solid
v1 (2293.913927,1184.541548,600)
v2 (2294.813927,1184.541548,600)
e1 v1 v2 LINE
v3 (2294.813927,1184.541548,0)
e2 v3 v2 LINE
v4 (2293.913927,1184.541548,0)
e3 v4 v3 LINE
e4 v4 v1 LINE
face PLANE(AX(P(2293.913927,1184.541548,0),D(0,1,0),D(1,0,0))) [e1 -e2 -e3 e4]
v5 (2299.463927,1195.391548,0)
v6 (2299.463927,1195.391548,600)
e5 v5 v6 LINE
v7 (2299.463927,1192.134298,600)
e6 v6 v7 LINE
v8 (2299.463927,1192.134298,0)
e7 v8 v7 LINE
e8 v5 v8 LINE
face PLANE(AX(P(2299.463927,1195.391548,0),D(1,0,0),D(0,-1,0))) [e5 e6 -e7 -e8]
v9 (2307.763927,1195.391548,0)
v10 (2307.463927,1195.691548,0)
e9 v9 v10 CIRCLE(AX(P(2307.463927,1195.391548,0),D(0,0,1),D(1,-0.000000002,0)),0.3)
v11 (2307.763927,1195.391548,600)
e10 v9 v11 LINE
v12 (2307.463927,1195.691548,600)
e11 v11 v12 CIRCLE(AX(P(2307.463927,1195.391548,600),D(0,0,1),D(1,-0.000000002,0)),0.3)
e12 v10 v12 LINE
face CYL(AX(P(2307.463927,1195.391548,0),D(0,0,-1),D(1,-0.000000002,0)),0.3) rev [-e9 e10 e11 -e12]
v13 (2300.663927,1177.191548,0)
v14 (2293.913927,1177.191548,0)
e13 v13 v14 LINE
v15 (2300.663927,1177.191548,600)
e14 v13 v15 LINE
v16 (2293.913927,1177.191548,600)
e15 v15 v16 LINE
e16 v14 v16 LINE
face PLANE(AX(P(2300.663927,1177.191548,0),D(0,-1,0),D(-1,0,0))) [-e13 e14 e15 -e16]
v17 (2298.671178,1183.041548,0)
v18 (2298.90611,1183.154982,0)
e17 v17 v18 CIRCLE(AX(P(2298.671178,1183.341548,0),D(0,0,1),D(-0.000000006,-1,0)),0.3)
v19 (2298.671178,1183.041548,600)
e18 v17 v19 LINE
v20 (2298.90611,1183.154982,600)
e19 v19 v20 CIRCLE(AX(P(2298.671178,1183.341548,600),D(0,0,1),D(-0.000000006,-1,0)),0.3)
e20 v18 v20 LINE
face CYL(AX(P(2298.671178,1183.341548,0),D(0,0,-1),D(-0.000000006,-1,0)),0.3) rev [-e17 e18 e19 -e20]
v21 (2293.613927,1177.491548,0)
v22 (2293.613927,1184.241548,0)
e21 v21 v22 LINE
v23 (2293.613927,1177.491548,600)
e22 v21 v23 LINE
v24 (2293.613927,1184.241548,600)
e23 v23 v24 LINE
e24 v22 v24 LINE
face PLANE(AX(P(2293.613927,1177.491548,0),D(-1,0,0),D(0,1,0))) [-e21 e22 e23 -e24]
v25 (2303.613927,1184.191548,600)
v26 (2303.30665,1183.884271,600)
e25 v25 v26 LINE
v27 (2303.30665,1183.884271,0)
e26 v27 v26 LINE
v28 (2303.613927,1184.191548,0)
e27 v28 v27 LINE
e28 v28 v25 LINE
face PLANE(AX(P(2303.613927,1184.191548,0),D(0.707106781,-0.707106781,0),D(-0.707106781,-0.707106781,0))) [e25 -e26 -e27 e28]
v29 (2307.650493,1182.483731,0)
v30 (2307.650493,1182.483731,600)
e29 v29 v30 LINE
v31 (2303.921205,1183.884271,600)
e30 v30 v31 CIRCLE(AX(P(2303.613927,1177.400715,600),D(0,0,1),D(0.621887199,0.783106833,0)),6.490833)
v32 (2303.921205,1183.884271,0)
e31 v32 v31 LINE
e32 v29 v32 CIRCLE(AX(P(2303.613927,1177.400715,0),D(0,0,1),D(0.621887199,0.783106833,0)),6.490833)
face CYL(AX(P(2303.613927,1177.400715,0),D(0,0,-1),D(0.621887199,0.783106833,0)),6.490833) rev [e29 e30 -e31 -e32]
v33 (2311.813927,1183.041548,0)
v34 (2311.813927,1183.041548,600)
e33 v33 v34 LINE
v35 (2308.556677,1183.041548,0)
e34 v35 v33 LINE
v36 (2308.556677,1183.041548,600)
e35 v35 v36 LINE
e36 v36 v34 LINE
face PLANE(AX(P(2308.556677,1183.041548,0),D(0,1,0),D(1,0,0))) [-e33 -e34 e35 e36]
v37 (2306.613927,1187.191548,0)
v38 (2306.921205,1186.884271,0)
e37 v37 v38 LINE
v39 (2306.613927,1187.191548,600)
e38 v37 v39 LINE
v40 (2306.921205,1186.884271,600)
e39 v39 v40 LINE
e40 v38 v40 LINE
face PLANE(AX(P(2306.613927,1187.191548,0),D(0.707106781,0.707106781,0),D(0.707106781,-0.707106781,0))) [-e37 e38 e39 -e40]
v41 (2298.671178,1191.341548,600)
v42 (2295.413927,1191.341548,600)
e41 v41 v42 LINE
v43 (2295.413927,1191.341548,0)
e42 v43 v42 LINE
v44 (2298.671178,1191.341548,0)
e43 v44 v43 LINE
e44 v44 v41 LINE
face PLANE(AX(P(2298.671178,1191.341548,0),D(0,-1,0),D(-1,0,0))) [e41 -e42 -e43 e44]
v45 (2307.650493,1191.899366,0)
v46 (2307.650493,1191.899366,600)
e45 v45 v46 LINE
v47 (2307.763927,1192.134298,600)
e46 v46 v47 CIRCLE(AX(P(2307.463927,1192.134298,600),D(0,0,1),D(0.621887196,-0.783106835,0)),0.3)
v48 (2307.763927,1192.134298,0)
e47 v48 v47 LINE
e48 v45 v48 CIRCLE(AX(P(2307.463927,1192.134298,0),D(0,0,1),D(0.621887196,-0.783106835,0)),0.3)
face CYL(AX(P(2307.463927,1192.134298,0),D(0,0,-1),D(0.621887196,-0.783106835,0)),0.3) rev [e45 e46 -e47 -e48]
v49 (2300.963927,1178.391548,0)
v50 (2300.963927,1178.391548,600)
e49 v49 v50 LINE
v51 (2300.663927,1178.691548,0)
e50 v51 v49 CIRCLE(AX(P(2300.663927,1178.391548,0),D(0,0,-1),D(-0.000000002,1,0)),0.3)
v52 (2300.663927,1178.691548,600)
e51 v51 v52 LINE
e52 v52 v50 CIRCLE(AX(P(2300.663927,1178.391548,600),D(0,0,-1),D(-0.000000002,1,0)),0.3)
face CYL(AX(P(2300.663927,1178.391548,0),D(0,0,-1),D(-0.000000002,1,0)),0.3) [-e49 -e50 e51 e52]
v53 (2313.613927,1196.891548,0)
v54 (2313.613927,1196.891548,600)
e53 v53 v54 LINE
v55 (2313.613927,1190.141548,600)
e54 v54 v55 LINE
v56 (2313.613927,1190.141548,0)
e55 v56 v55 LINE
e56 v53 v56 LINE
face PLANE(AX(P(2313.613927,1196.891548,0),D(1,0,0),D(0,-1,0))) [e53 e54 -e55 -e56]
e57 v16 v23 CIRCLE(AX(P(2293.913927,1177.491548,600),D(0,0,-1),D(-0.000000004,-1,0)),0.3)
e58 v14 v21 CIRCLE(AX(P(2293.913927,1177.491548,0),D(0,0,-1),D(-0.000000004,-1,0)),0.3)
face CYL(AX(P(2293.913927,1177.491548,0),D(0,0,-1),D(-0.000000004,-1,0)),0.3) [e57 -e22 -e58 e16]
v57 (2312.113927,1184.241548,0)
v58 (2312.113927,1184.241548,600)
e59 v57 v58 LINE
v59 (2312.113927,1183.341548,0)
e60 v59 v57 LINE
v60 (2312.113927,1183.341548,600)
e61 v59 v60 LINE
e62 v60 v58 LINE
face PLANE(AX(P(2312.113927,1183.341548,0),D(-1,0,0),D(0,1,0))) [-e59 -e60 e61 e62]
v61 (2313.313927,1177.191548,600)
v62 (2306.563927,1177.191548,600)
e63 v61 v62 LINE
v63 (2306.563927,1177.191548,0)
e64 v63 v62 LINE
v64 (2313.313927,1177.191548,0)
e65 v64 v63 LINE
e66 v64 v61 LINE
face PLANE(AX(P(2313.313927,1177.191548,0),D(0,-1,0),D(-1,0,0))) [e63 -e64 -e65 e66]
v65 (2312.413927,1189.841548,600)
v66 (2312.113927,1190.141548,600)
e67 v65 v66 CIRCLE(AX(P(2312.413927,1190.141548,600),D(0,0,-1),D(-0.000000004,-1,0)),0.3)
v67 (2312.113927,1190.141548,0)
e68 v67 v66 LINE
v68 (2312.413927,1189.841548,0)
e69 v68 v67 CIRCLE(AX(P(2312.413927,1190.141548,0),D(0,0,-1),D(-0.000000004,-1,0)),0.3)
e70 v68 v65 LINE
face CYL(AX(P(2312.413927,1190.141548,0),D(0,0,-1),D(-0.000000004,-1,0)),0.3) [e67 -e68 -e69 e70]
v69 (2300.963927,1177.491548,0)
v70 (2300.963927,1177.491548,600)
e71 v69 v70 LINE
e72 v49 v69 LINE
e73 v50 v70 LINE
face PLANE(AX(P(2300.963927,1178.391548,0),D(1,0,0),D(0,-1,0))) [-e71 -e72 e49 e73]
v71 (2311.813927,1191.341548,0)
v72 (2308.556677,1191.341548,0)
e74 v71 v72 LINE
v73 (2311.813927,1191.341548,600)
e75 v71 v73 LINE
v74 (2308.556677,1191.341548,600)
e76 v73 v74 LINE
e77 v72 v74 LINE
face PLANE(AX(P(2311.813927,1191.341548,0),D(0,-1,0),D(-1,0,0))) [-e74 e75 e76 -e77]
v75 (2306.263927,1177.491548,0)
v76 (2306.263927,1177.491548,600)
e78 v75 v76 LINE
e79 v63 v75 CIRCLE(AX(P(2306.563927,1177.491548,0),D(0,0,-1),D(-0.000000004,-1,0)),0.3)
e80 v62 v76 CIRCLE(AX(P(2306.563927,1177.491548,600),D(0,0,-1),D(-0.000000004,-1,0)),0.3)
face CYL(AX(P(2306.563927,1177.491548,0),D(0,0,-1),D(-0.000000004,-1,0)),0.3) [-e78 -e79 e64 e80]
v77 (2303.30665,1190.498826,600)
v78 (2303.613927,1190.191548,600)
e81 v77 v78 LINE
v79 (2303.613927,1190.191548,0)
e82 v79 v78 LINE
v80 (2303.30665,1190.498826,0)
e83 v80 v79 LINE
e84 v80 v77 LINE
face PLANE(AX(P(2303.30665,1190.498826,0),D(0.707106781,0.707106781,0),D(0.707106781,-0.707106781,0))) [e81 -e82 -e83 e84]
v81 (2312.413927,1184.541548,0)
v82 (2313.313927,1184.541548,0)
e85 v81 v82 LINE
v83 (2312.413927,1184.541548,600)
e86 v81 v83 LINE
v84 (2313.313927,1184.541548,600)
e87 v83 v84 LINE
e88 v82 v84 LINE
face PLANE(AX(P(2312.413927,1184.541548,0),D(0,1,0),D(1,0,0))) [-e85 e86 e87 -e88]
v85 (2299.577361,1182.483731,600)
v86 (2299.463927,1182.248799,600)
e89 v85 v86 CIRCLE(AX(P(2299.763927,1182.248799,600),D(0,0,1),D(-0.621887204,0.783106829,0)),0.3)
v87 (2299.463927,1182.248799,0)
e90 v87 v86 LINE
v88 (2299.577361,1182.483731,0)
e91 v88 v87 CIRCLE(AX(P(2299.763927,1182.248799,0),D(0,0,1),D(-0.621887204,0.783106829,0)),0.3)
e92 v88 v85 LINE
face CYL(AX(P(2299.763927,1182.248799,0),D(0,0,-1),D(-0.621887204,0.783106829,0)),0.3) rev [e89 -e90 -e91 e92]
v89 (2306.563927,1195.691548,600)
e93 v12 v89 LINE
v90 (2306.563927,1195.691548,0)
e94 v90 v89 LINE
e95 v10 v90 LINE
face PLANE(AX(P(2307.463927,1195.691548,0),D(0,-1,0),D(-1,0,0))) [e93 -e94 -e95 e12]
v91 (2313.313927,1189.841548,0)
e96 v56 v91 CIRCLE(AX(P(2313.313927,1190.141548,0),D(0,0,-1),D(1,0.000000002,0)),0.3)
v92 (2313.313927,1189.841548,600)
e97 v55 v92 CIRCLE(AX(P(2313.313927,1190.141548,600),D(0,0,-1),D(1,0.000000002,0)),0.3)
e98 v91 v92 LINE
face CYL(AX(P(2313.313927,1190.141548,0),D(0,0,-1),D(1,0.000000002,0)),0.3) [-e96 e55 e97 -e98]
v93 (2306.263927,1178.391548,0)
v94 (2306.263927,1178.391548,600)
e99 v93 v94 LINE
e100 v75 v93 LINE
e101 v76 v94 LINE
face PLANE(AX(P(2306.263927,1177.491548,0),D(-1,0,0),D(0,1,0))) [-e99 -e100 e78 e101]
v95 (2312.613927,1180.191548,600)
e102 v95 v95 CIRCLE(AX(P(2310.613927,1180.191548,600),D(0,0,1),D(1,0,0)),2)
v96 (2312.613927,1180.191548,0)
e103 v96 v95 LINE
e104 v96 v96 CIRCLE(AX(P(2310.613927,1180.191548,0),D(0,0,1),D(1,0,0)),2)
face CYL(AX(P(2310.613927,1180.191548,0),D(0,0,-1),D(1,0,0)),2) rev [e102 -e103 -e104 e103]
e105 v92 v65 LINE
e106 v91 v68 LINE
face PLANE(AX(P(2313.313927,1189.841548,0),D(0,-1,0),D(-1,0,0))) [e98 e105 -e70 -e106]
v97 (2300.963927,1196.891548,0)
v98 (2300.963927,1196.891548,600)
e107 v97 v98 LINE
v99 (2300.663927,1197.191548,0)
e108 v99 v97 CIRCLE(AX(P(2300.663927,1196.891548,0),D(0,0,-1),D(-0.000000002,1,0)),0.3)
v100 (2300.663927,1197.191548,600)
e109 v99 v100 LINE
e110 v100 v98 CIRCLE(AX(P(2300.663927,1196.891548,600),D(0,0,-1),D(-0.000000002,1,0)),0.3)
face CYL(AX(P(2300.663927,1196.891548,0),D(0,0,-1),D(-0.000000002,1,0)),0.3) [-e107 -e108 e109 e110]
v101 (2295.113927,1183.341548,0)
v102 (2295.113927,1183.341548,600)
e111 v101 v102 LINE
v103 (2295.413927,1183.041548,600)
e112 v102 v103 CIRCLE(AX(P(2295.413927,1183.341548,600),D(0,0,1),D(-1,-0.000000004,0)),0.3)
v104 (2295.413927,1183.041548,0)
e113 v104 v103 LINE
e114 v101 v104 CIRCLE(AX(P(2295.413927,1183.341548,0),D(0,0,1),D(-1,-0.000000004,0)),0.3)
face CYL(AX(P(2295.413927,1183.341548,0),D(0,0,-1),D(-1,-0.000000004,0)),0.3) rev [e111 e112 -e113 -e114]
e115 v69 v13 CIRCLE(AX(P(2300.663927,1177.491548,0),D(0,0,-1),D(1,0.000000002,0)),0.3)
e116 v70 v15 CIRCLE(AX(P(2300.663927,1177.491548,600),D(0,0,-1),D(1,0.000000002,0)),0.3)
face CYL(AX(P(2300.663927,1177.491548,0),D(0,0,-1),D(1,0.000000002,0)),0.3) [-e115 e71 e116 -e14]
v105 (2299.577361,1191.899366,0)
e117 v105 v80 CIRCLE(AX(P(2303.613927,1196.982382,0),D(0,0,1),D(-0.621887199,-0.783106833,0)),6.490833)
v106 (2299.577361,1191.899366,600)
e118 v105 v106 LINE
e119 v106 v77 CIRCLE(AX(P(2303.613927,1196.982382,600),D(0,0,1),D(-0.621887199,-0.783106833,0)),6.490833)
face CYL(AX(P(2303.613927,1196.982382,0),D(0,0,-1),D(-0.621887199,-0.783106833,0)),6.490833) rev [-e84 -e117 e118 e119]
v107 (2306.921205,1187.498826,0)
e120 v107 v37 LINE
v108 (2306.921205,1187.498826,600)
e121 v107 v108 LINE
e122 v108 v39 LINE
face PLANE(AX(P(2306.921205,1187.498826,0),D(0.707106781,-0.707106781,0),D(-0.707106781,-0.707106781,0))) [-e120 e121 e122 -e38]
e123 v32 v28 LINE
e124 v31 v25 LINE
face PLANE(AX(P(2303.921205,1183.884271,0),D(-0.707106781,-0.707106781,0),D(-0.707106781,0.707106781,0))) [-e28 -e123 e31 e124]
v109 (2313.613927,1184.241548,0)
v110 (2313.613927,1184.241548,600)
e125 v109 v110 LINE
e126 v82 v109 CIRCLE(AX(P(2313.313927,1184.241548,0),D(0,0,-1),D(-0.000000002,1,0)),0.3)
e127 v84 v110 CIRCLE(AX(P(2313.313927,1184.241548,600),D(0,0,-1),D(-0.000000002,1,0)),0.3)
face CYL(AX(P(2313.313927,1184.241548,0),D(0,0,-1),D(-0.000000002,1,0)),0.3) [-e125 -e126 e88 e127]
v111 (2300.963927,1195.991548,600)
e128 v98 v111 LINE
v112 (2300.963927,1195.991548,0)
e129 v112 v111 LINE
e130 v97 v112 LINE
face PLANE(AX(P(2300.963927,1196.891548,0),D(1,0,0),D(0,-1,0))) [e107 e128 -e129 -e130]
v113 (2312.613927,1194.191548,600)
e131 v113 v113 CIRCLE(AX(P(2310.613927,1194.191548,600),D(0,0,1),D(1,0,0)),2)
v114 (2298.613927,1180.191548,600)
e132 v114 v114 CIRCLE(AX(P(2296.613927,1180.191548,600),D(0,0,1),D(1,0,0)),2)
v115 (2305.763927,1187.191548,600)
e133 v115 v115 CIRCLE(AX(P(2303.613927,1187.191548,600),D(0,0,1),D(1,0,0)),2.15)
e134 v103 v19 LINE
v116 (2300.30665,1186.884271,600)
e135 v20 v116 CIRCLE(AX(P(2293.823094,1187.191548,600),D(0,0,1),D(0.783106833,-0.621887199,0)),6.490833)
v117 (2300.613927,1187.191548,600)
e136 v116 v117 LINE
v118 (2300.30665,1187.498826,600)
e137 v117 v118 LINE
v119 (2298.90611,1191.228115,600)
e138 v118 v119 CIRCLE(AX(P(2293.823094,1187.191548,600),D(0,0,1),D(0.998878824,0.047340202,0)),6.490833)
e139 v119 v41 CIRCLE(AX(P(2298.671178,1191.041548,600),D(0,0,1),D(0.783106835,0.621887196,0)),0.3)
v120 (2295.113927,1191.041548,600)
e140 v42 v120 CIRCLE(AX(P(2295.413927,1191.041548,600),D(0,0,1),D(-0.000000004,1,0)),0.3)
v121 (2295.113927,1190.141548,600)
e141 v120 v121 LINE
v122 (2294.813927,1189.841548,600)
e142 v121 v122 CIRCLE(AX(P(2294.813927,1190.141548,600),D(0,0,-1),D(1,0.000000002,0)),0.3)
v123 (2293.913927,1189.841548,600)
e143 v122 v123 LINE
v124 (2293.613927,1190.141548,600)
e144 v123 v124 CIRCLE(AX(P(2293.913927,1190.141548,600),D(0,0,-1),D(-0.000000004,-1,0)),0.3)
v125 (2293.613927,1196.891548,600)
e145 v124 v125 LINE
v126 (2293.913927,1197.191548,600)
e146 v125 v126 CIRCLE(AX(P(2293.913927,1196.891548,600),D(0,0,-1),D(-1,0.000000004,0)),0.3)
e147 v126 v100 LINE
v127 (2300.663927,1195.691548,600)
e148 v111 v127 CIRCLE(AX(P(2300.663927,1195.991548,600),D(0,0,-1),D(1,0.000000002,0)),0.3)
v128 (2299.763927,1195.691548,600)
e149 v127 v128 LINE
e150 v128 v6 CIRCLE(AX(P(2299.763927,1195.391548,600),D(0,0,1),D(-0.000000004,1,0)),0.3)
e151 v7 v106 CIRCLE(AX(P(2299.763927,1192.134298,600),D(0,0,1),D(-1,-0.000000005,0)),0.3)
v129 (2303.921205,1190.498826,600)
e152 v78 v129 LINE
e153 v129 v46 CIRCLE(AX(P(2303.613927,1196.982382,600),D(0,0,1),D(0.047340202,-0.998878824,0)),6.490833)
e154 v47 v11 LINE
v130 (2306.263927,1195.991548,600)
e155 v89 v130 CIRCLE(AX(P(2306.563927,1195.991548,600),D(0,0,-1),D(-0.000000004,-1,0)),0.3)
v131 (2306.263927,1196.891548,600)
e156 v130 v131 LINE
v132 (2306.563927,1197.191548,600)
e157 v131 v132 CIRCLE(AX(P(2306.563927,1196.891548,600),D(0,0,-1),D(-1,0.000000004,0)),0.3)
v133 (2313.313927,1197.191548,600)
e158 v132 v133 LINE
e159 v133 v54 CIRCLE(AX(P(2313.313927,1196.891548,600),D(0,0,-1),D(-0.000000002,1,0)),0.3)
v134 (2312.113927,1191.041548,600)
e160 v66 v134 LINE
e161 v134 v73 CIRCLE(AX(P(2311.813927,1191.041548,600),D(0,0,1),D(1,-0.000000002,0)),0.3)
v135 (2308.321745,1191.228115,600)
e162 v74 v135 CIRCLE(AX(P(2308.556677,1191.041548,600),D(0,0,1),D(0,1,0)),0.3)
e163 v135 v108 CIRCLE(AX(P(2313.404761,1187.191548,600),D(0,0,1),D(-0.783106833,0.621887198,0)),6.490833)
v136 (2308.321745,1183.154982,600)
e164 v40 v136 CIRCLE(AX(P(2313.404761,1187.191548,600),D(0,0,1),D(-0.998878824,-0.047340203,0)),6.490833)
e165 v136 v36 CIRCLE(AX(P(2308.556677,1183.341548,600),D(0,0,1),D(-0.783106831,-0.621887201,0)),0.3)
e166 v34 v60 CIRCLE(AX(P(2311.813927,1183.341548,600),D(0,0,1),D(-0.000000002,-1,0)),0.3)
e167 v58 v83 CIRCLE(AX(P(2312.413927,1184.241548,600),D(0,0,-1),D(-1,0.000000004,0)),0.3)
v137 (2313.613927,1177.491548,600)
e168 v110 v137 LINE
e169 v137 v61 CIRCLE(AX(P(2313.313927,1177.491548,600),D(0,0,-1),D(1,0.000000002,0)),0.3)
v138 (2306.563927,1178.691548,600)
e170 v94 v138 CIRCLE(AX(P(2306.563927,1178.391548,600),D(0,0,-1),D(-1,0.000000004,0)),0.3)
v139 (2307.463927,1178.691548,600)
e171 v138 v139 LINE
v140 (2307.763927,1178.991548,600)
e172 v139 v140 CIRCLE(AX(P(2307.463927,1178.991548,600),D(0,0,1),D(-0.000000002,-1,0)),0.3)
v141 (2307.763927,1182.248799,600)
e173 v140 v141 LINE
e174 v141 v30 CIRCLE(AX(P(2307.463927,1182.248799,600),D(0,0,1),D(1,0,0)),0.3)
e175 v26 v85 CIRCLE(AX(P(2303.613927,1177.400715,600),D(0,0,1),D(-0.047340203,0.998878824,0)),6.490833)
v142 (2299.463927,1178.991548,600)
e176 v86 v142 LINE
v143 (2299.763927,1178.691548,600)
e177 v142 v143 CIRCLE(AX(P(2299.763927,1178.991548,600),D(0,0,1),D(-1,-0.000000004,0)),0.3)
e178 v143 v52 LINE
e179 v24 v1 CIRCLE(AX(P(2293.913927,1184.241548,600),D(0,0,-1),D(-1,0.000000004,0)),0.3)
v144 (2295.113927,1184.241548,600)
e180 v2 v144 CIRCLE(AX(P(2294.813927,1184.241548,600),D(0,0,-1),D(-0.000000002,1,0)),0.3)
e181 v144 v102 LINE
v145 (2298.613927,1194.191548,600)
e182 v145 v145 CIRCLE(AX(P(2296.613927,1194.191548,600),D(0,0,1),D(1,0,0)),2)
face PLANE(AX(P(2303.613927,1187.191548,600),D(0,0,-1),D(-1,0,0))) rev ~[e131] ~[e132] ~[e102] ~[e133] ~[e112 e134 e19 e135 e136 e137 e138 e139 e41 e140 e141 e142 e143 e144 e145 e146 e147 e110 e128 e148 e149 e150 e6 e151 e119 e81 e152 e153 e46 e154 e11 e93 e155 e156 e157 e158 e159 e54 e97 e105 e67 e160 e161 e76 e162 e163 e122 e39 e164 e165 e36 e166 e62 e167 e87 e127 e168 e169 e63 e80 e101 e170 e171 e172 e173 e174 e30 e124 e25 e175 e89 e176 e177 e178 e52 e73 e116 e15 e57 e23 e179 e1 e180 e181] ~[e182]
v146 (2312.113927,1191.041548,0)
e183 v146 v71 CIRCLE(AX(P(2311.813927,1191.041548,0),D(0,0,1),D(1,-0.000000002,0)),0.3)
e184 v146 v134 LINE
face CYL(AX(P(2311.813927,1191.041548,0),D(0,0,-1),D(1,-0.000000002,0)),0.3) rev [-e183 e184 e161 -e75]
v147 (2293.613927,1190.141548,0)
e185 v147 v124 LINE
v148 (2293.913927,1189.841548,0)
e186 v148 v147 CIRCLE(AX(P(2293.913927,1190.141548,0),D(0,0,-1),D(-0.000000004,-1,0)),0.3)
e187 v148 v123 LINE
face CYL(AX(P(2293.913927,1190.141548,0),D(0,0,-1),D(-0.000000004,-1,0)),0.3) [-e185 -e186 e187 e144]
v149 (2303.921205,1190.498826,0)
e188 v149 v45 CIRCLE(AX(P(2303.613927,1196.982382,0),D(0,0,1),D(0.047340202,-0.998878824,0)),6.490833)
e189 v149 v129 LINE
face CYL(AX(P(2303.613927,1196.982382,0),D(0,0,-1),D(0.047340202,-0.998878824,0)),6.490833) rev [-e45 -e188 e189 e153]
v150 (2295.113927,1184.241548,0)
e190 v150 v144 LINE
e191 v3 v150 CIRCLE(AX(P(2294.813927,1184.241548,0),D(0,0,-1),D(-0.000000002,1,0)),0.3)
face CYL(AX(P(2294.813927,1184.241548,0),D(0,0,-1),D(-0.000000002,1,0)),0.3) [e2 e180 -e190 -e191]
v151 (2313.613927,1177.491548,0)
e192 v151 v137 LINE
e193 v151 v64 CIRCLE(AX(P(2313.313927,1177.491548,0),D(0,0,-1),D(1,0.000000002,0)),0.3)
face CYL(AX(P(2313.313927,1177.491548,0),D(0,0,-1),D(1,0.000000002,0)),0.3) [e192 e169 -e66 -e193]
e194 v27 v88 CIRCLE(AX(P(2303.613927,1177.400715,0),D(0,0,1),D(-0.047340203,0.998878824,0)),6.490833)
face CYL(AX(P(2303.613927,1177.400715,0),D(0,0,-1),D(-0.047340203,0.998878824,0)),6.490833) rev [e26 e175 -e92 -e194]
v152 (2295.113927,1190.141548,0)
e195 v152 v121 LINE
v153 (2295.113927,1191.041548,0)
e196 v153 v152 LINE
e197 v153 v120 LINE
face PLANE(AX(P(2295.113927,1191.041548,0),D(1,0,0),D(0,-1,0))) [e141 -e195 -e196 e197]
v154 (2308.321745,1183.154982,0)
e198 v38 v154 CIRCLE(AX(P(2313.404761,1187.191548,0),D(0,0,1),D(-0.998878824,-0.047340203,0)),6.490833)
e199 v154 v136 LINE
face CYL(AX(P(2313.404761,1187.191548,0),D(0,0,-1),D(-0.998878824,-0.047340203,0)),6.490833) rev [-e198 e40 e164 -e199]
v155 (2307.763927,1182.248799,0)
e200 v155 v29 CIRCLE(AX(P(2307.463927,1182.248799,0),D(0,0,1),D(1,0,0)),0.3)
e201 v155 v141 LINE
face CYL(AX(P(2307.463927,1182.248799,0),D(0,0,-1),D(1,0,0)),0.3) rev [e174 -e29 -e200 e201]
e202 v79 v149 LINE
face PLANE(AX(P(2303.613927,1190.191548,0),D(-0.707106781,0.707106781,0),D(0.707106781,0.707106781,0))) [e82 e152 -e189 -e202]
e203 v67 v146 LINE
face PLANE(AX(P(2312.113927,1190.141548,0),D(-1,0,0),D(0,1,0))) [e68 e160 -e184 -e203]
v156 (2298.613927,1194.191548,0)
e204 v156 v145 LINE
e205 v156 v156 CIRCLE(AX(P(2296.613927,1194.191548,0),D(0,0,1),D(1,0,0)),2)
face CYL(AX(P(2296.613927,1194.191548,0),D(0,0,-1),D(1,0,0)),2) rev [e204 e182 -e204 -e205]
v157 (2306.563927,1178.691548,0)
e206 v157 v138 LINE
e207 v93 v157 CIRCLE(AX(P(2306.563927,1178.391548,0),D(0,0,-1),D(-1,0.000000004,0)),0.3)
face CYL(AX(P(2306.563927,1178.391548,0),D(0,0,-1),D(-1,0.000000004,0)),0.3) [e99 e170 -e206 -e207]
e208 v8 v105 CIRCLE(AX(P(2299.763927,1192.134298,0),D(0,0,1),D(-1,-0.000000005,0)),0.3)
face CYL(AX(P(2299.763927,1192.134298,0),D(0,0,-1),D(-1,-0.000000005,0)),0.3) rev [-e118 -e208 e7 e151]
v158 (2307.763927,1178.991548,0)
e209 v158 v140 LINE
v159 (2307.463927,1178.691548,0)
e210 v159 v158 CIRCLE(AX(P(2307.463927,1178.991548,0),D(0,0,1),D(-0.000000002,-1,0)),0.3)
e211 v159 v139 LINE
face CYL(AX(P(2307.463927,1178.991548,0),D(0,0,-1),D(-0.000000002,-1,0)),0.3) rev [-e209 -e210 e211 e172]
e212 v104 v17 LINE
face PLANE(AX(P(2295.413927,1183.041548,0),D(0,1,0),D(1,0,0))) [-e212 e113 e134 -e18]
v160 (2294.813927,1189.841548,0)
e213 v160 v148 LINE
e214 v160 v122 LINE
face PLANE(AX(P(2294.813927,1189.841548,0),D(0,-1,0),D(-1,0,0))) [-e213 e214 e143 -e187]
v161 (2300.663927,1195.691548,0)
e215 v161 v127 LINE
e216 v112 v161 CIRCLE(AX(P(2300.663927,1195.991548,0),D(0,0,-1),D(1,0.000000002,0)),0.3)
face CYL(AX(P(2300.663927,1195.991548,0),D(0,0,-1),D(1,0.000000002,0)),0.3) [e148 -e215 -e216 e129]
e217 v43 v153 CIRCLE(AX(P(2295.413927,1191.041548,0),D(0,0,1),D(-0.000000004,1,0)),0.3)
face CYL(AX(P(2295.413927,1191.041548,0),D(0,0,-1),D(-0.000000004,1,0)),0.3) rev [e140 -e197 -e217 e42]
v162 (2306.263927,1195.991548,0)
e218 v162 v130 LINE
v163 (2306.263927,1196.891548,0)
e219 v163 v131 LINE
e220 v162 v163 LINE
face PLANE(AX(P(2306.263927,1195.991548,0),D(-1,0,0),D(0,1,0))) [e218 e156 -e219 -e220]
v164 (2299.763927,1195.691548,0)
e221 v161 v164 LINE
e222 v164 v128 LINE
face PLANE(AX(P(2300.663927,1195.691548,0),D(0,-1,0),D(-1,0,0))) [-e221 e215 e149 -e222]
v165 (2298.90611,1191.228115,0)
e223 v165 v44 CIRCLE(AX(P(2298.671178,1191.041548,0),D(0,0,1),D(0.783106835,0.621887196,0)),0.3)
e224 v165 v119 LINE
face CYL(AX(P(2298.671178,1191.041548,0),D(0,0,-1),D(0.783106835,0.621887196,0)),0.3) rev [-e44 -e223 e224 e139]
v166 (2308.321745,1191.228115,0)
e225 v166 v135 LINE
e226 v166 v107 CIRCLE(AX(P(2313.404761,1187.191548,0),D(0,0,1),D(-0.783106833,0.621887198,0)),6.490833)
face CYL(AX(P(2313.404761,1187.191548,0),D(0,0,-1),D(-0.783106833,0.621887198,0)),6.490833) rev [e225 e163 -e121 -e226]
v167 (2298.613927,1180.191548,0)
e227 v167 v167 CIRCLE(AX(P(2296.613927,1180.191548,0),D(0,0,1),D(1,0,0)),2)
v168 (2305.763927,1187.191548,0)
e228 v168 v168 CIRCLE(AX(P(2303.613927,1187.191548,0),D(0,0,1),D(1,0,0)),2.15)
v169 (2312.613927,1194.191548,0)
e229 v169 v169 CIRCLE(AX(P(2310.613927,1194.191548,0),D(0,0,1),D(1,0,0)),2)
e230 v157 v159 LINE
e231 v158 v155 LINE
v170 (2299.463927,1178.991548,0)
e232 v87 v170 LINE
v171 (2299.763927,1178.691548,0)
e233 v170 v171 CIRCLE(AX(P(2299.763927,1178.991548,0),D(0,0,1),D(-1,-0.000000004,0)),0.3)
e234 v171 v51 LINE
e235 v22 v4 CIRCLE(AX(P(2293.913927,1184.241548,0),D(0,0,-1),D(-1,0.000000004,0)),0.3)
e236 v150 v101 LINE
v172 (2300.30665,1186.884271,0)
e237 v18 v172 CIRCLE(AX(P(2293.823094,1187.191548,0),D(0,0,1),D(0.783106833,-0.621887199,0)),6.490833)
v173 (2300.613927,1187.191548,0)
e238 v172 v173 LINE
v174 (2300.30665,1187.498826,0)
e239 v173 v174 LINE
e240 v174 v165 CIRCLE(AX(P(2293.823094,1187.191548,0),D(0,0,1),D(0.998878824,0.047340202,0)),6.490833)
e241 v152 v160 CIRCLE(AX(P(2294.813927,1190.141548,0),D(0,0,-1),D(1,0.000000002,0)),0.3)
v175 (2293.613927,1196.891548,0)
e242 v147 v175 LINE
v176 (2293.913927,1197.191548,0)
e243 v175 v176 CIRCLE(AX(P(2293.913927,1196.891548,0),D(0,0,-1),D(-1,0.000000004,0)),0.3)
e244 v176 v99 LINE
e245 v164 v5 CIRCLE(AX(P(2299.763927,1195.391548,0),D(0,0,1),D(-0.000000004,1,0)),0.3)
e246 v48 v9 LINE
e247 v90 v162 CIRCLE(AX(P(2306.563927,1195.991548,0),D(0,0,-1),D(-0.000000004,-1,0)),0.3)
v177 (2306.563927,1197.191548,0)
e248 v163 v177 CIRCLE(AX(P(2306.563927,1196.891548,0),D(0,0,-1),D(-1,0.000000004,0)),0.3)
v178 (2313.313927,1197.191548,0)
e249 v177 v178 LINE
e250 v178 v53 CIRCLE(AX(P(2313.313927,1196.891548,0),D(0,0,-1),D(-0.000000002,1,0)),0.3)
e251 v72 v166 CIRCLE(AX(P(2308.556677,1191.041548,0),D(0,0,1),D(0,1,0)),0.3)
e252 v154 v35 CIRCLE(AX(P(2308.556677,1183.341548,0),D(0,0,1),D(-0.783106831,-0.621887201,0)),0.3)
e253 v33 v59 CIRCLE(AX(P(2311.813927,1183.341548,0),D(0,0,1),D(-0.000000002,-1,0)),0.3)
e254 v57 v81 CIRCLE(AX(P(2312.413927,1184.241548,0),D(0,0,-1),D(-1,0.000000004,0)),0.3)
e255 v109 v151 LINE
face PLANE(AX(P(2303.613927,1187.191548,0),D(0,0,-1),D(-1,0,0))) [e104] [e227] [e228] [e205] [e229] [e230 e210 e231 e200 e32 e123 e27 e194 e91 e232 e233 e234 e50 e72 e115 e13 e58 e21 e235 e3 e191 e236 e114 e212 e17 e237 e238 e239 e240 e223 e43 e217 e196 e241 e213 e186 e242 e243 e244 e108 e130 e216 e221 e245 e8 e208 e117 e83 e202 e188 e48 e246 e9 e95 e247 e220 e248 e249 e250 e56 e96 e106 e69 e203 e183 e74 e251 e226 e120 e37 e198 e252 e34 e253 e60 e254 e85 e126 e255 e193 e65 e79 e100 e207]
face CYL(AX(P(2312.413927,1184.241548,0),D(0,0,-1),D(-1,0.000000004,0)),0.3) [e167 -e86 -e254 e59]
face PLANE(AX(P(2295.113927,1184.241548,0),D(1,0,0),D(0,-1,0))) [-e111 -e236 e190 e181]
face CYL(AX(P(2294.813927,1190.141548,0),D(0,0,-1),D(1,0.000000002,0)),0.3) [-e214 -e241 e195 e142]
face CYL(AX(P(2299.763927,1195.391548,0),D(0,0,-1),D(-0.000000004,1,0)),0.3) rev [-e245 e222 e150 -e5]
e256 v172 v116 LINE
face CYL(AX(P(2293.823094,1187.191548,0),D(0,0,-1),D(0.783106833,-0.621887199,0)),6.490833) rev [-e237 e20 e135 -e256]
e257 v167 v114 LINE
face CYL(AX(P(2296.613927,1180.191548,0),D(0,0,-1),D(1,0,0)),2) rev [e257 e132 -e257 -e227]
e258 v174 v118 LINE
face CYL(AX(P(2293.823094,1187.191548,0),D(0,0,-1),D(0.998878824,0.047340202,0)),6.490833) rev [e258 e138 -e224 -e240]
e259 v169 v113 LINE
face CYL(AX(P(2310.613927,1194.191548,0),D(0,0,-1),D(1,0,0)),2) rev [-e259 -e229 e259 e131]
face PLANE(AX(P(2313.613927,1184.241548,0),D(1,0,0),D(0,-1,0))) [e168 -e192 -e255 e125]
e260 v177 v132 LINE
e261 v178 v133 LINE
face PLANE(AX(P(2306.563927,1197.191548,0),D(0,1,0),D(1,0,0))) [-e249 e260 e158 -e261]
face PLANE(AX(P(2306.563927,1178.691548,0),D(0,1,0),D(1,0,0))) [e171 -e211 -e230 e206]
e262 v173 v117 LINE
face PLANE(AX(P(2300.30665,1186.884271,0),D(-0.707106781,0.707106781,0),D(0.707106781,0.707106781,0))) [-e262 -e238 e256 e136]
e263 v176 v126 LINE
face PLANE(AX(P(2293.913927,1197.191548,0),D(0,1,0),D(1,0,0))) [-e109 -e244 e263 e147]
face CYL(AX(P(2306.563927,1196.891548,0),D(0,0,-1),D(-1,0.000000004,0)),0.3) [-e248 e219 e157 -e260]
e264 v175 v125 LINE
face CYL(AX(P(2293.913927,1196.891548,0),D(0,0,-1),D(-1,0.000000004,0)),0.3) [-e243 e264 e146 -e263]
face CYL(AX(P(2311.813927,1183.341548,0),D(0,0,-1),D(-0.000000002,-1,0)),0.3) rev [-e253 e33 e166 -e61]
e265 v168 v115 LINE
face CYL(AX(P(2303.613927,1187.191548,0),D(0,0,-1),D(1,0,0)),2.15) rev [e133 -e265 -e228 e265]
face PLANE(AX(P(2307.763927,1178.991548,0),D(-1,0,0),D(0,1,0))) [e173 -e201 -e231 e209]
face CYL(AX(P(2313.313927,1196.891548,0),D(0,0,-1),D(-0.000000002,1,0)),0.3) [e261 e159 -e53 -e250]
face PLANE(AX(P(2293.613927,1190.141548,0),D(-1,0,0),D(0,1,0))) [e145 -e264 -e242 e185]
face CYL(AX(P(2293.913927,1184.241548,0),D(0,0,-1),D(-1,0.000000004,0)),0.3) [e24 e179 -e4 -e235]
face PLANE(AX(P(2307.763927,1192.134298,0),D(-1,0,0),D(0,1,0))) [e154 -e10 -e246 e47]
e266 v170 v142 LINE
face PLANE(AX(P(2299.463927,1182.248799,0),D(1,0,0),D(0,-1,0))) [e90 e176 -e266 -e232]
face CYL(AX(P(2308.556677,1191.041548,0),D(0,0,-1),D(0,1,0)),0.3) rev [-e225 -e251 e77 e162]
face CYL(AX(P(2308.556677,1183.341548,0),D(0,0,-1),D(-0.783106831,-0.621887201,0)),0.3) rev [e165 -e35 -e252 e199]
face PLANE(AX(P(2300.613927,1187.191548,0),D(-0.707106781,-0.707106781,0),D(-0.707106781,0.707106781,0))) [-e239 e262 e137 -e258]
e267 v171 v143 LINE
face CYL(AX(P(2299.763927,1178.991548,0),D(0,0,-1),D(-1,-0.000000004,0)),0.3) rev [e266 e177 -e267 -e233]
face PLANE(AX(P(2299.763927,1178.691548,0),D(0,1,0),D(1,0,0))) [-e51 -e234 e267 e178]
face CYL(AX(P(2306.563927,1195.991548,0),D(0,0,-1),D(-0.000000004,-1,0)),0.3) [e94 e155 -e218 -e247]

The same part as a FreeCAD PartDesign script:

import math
import FreeCAD as App
import Part
import Sketcher
Q = App.Units.Quantity

doc = App.newDocument("Part")
params = doc.addObject("Spreadsheet::Sheet", "Params")
for row, (alias, value) in enumerate([
    ("sketch1_diameter", "4 mm"),
    ("sketch1_diameter2", "4.3 mm"),
    ("sketch1_radius", "0.3 mm"),
    ("sketch1_width", "0.9 mm"),
    ("sketch1_width2", "6.75 mm"),
    ("pad1_length", "600 mm"),
], start=1):
    params.set(f"A{row}", alias)
    params.set(f"B{row}", "=" + value)
    params.setAlias(f"B{row}", alias)

body = doc.addObject("PartDesign::Body", "Body")

# Sketch on XY plane
sketch1 = doc.addObject("Sketcher::SketchObject", "Sketch")
body.addObject(sketch1)
sketch1.AttachmentSupport = (doc.XY_Plane, [""])
sketch1.MapMode = "FlatFace"
sketch1.addGeometry([
    Part.LineSegment(App.Vector(2307.763927, 1195.391548, 0), App.Vector(2307.763927, 1192.134298, 0)),  # 0
    Part.ArcOfCircle(Part.Circle(App.Vector(2307.463927, 1192.134298, 0), App.Vector(0, 0, 1), 0.3), math.radians(-51.545921), math.radians(0)),  # 1
    Part.ArcOfCircle(Part.Circle(App.Vector(2303.613927, 1196.982382, 0), App.Vector(0, 0, 1), 6.490833), math.radians(-87.286592), math.radians(-51.545921)),  # 2
    Part.LineSegment(App.Vector(2303.921205, 1190.498826, 0), App.Vector(2303.613927, 1190.191548, 0)),  # 3
    Part.LineSegment(App.Vector(2303.613927, 1190.191548, 0), App.Vector(2303.30665, 1190.498826, 0)),  # 4
    Part.ArcOfCircle(Part.Circle(App.Vector(2303.613927, 1196.982382, 0), App.Vector(0, 0, 1), 6.490833), math.radians(-128.454079), math.radians(-92.713408)),  # 5
    Part.ArcOfCircle(Part.Circle(App.Vector(2299.763927, 1192.134298, 0), App.Vector(0, 0, 1), 0.3), math.radians(-180), math.radians(-128.454079)),  # 6
    Part.LineSegment(App.Vector(2299.463927, 1192.134298, 0), App.Vector(2299.463927, 1195.391548, 0)),  # 7
    Part.ArcOfCircle(Part.Circle(App.Vector(2299.763927, 1195.391548, 0), App.Vector(0, 0, 1), 0.3), math.radians(90), math.radians(180)),  # 8
    Part.LineSegment(App.Vector(2299.763927, 1195.691548, 0), App.Vector(2300.663927, 1195.691548, 0)),  # 9
    Part.ArcOfCircle(Part.Circle(App.Vector(2300.663927, 1195.991548, 0), App.Vector(0, 0, 1), 0.3), math.radians(-90), math.radians(0)),  # 10
    Part.LineSegment(App.Vector(2300.963927, 1195.991548, 0), App.Vector(2300.963927, 1196.891548, 0)),  # 11
    Part.ArcOfCircle(Part.Circle(App.Vector(2300.663927, 1196.891548, 0), App.Vector(0, 0, 1), 0.3), math.radians(0), math.radians(90)),  # 12
    Part.LineSegment(App.Vector(2300.663927, 1197.191548, 0), App.Vector(2293.913927, 1197.191548, 0)),  # 13
    Part.ArcOfCircle(Part.Circle(App.Vector(2293.913927, 1196.891548, 0), App.Vector(0, 0, 1), 0.3), math.radians(90), math.radians(180)),  # 14
    Part.LineSegment(App.Vector(2293.613927, 1196.891548, 0), App.Vector(2293.613927, 1190.141548, 0)),  # 15
    Part.ArcOfCircle(Part.Circle(App.Vector(2293.913927, 1190.141548, 0), App.Vector(0, 0, 1), 0.3), math.radians(-180), math.radians(-90)),  # 16
    Part.LineSegment(App.Vector(2293.913927, 1189.841548, 0), App.Vector(2294.813927, 1189.841548, 0)),  # 17
    Part.ArcOfCircle(Part.Circle(App.Vector(2294.813927, 1190.141548, 0), App.Vector(0, 0, 1), 0.3), math.radians(-90), math.radians(0)),  # 18
    Part.LineSegment(App.Vector(2295.113927, 1190.141548, 0), App.Vector(2295.113927, 1191.041548, 0)),  # 19
    Part.ArcOfCircle(Part.Circle(App.Vector(2295.413927, 1191.041548, 0), App.Vector(0, 0, 1), 0.3), math.radians(90), math.radians(180)),  # 20
    Part.LineSegment(App.Vector(2295.413927, 1191.341548, 0), App.Vector(2298.671178, 1191.341548, 0)),  # 21
    Part.ArcOfCircle(Part.Circle(App.Vector(2298.671178, 1191.041548, 0), App.Vector(0, 0, 1), 0.3), math.radians(38.454079), math.radians(90)),  # 22
    Part.ArcOfCircle(Part.Circle(App.Vector(2293.823094, 1187.191548, 0), App.Vector(0, 0, 1), 6.490833), math.radians(2.713408), math.radians(38.454079)),  # 23
    Part.LineSegment(App.Vector(2300.30665, 1187.498826, 0), App.Vector(2300.613927, 1187.191548, 0)),  # 24
    Part.LineSegment(App.Vector(2300.613927, 1187.191548, 0), App.Vector(2300.30665, 1186.884271, 0)),  # 25
    Part.ArcOfCircle(Part.Circle(App.Vector(2293.823094, 1187.191548, 0), App.Vector(0, 0, 1), 6.490833), math.radians(-38.454079), math.radians(-2.713408)),  # 26
    Part.ArcOfCircle(Part.Circle(App.Vector(2298.671178, 1183.341548, 0), App.Vector(0, 0, 1), 0.3), math.radians(-90), math.radians(-38.454079)),  # 27
    Part.LineSegment(App.Vector(2298.671178, 1183.041548, 0), App.Vector(2295.413927, 1183.041548, 0)),  # 28
    Part.ArcOfCircle(Part.Circle(App.Vector(2295.413927, 1183.341548, 0), App.Vector(0, 0, 1), 0.3), math.radians(-180), math.radians(-90)),  # 29
    Part.LineSegment(App.Vector(2295.113927, 1183.341548, 0), App.Vector(2295.113927, 1184.241548, 0)),  # 30
    Part.ArcOfCircle(Part.Circle(App.Vector(2294.813927, 1184.241548, 0), App.Vector(0, 0, 1), 0.3), math.radians(0), math.radians(90)),  # 31
    Part.LineSegment(App.Vector(2294.813927, 1184.541548, 0), App.Vector(2293.913927, 1184.541548, 0)),  # 32
    Part.ArcOfCircle(Part.Circle(App.Vector(2293.913927, 1184.241548, 0), App.Vector(0, 0, 1), 0.3), math.radians(90), math.radians(180)),  # 33
    Part.LineSegment(App.Vector(2293.613927, 1184.241548, 0), App.Vector(2293.613927, 1177.491548, 0)),  # 34
    Part.ArcOfCircle(Part.Circle(App.Vector(2293.913927, 1177.491548, 0), App.Vector(0, 0, 1), 0.3), math.radians(-180), math.radians(-90)),  # 35
    Part.LineSegment(App.Vector(2293.913927, 1177.191548, 0), App.Vector(2300.663927, 1177.191548, 0)),  # 36
    Part.ArcOfCircle(Part.Circle(App.Vector(2300.663927, 1177.491548, 0), App.Vector(0, 0, 1), 0.3), math.radians(-90), math.radians(0)),  # 37
    Part.LineSegment(App.Vector(2300.963927, 1177.491548, 0), App.Vector(2300.963927, 1178.391548, 0)),  # 38
    Part.ArcOfCircle(Part.Circle(App.Vector(2300.663927, 1178.391548, 0), App.Vector(0, 0, 1), 0.3), math.radians(0), math.radians(90)),  # 39
    Part.LineSegment(App.Vector(2300.663927, 1178.691548, 0), App.Vector(2299.763927, 1178.691548, 0)),  # 40
    Part.ArcOfCircle(Part.Circle(App.Vector(2299.763927, 1178.991548, 0), App.Vector(0, 0, 1), 0.3), math.radians(-180), math.radians(-90)),  # 41
    Part.LineSegment(App.Vector(2299.463927, 1178.991548, 0), App.Vector(2299.463927, 1182.248799, 0)),  # 42
    Part.ArcOfCircle(Part.Circle(App.Vector(2299.763927, 1182.248799, 0), App.Vector(0, 0, 1), 0.3), math.radians(128.45408), math.radians(179.999999)),  # 43
    Part.ArcOfCircle(Part.Circle(App.Vector(2303.613927, 1177.400715, 0), App.Vector(0, 0, 1), 6.490833), math.radians(92.713408), math.radians(128.454079)),  # 44
    Part.LineSegment(App.Vector(2303.30665, 1183.884271, 0), App.Vector(2303.613927, 1184.191548, 0)),  # 45
    Part.LineSegment(App.Vector(2303.613927, 1184.191548, 0), App.Vector(2303.921205, 1183.884271, 0)),  # 46
    Part.ArcOfCircle(Part.Circle(App.Vector(2303.613927, 1177.400715, 0), App.Vector(0, 0, 1), 6.490833), math.radians(51.545921), math.radians(87.286592)),  # 47
    Part.ArcOfCircle(Part.Circle(App.Vector(2307.463927, 1182.248799, 0), App.Vector(0, 0, 1), 0.3), math.radians(0), math.radians(51.545921)),  # 48
    Part.LineSegment(App.Vector(2307.763927, 1182.248799, 0), App.Vector(2307.763927, 1178.991548, 0)),  # 49
    Part.ArcOfCircle(Part.Circle(App.Vector(2307.463927, 1178.991548, 0), App.Vector(0, 0, 1), 0.3), math.radians(-90), math.radians(0)),  # 50
    Part.LineSegment(App.Vector(2307.463927, 1178.691548, 0), App.Vector(2306.563927, 1178.691548, 0)),  # 51
    Part.ArcOfCircle(Part.Circle(App.Vector(2306.563927, 1178.391548, 0), App.Vector(0, 0, 1), 0.3), math.radians(90), math.radians(180)),  # 52
    Part.LineSegment(App.Vector(2306.263927, 1178.391548, 0), App.Vector(2306.263927, 1177.491548, 0)),  # 53
    Part.ArcOfCircle(Part.Circle(App.Vector(2306.563927, 1177.491548, 0), App.Vector(0, 0, 1), 0.3), math.radians(-180), math.radians(-90)),  # 54
    Part.LineSegment(App.Vector(2306.563927, 1177.191548, 0), App.Vector(2313.313927, 1177.191548, 0)),  # 55
    Part.ArcOfCircle(Part.Circle(App.Vector(2313.313927, 1177.491548, 0), App.Vector(0, 0, 1), 0.3), math.radians(-90), math.radians(0)),  # 56
    Part.LineSegment(App.Vector(2313.613927, 1177.491548, 0), App.Vector(2313.613927, 1184.241548, 0)),  # 57
    Part.ArcOfCircle(Part.Circle(App.Vector(2313.313927, 1184.241548, 0), App.Vector(0, 0, 1), 0.3), math.radians(0), math.radians(90)),  # 58
    Part.LineSegment(App.Vector(2313.313927, 1184.541548, 0), App.Vector(2312.413927, 1184.541548, 0)),  # 59
    Part.ArcOfCircle(Part.Circle(App.Vector(2312.413927, 1184.241548, 0), App.Vector(0, 0, 1), 0.3), math.radians(90), math.radians(180)),  # 60
    Part.LineSegment(App.Vector(2312.113927, 1184.241548, 0), App.Vector(2312.113927, 1183.341548, 0)),  # 61
    Part.ArcOfCircle(Part.Circle(App.Vector(2311.813927, 1183.341548, 0), App.Vector(0, 0, 1), 0.3), math.radians(-90), math.radians(0)),  # 62
    Part.LineSegment(App.Vector(2311.813927, 1183.041548, 0), App.Vector(2308.556677, 1183.041548, 0)),  # 63
    Part.ArcOfCircle(Part.Circle(App.Vector(2308.556677, 1183.341548, 0), App.Vector(0, 0, 1), 0.3), math.radians(-141.545921), math.radians(-90)),  # 64
    Part.ArcOfCircle(Part.Circle(App.Vector(2313.404761, 1187.191548, 0), App.Vector(0, 0, 1), 6.490833), math.radians(-177.286592), math.radians(-141.545921)),  # 65
    Part.LineSegment(App.Vector(2306.921205, 1186.884271, 0), App.Vector(2306.613927, 1187.191548, 0)),  # 66
    Part.LineSegment(App.Vector(2306.613927, 1187.191548, 0), App.Vector(2306.921205, 1187.498826, 0)),  # 67
    Part.ArcOfCircle(Part.Circle(App.Vector(2313.404761, 1187.191548, 0), App.Vector(0, 0, 1), 6.490833), math.radians(141.545921), math.radians(177.286592)),  # 68
    Part.ArcOfCircle(Part.Circle(App.Vector(2308.556677, 1191.041548, 0), App.Vector(0, 0, 1), 0.3), math.radians(90), math.radians(141.545921)),  # 69
    Part.LineSegment(App.Vector(2308.556677, 1191.341548, 0), App.Vector(2311.813927, 1191.341548, 0)),  # 70
    Part.ArcOfCircle(Part.Circle(App.Vector(2311.813927, 1191.041548, 0), App.Vector(0, 0, 1), 0.3), math.radians(0), math.radians(90)),  # 71
    Part.LineSegment(App.Vector(2312.113927, 1191.041548, 0), App.Vector(2312.113927, 1190.141548, 0)),  # 72
    Part.ArcOfCircle(Part.Circle(App.Vector(2312.413927, 1190.141548, 0), App.Vector(0, 0, 1), 0.3), math.radians(-180), math.radians(-90)),  # 73
    Part.LineSegment(App.Vector(2312.413927, 1189.841548, 0), App.Vector(2313.313927, 1189.841548, 0)),  # 74
    Part.ArcOfCircle(Part.Circle(App.Vector(2313.313927, 1190.141548, 0), App.Vector(0, 0, 1), 0.3), math.radians(-90), math.radians(0)),  # 75
    Part.LineSegment(App.Vector(2313.613927, 1190.141548, 0), App.Vector(2313.613927, 1196.891548, 0)),  # 76
    Part.ArcOfCircle(Part.Circle(App.Vector(2313.313927, 1196.891548, 0), App.Vector(0, 0, 1), 0.3), math.radians(0), math.radians(90)),  # 77
    Part.LineSegment(App.Vector(2313.313927, 1197.191548, 0), App.Vector(2306.563927, 1197.191548, 0)),  # 78
    Part.ArcOfCircle(Part.Circle(App.Vector(2306.563927, 1196.891548, 0), App.Vector(0, 0, 1), 0.3), math.radians(90), math.radians(180)),  # 79
    Part.LineSegment(App.Vector(2306.263927, 1196.891548, 0), App.Vector(2306.263927, 1195.991548, 0)),  # 80
    Part.ArcOfCircle(Part.Circle(App.Vector(2306.563927, 1195.991548, 0), App.Vector(0, 0, 1), 0.3), math.radians(-180), math.radians(-90)),  # 81
    Part.LineSegment(App.Vector(2306.563927, 1195.691548, 0), App.Vector(2307.463927, 1195.691548, 0)),  # 82
    Part.ArcOfCircle(Part.Circle(App.Vector(2307.463927, 1195.391548, 0), App.Vector(0, 0, 1), 0.3), math.radians(0), math.radians(90)),  # 83
    Part.Circle(App.Vector(2310.613927, 1180.191548, 0), App.Vector(0, 0, 1), 2),  # 84
    Part.Circle(App.Vector(2296.613927, 1180.191548, 0), App.Vector(0, 0, 1), 2),  # 85
    Part.Circle(App.Vector(2310.613927, 1194.191548, 0), App.Vector(0, 0, 1), 2),  # 86
    Part.Circle(App.Vector(2303.613927, 1187.191548, 0), App.Vector(0, 0, 1), 2.15),  # 87
    Part.Circle(App.Vector(2296.613927, 1194.191548, 0), App.Vector(0, 0, 1), 2),  # 88
], False)
sketch1.addConstraint([
    Sketcher.Constraint("Tangent", 0, 2, 1, 2),
    Sketcher.Constraint("Tangent", 1, 1, 2, 2),
    Sketcher.Constraint("Coincident", 2, 1, 3, 1),
    Sketcher.Constraint("Coincident", 3, 2, 4, 1),
    Sketcher.Constraint("Coincident", 4, 2, 5, 2),
    Sketcher.Constraint("Tangent", 5, 1, 6, 2),
    Sketcher.Constraint("Tangent", 6, 1, 7, 1),
    Sketcher.Constraint("Tangent", 7, 2, 8, 2),
    Sketcher.Constraint("Tangent", 8, 1, 9, 1),
    Sketcher.Constraint("Tangent", 9, 2, 10, 1),
    Sketcher.Constraint("Tangent", 10, 2, 11, 1),
    Sketcher.Constraint("Tangent", 11, 2, 12, 1),
    Sketcher.Constraint("Tangent", 12, 2, 13, 1),
    Sketcher.Constraint("Tangent", 13, 2, 14, 1),
    Sketcher.Constraint("Tangent", 14, 2, 15, 1),
    Sketcher.Constraint("Tangent", 15, 2, 16, 1),
    Sketcher.Constraint("Tangent", 16, 2, 17, 1),
    Sketcher.Constraint("Tangent", 17, 2, 18, 1),
    Sketcher.Constraint("Tangent", 18, 2, 19, 1),
    Sketcher.Constraint("Tangent", 19, 2, 20, 2),
    Sketcher.Constraint("Tangent", 20, 1, 21, 1),
    Sketcher.Constraint("Tangent", 21, 2, 22, 2),
    Sketcher.Constraint("Tangent", 22, 1, 23, 2),
    Sketcher.Constraint("Coincident", 23, 1, 24, 1),
    Sketcher.Constraint("Coincident", 24, 2, 25, 1),
    Sketcher.Constraint("Coincident", 25, 2, 26, 2),
    Sketcher.Constraint("Tangent", 26, 1, 27, 2),
    Sketcher.Constraint("Tangent", 27, 1, 28, 1),
    Sketcher.Constraint("Tangent", 28, 2, 29, 2),
    Sketcher.Constraint("Tangent", 29, 1, 30, 1),
    Sketcher.Constraint("Tangent", 30, 2, 31, 1),
    Sketcher.Constraint("Tangent", 31, 2, 32, 1),
    Sketcher.Constraint("Tangent", 32, 2, 33, 1),
    Sketcher.Constraint("Tangent", 33, 2, 34, 1),
    Sketcher.Constraint("Tangent", 34, 2, 35, 1),
    Sketcher.Constraint("Tangent", 35, 2, 36, 1),
    Sketcher.Constraint("Tangent", 36, 2, 37, 1),
    Sketcher.Constraint("Tangent", 37, 2, 38, 1),
    Sketcher.Constraint("Tangent", 38, 2, 39, 1),
    Sketcher.Constraint("Tangent", 39, 2, 40, 1),
    Sketcher.Constraint("Tangent", 40, 2, 41, 2),
    Sketcher.Constraint("Tangent", 41, 1, 42, 1),
    Sketcher.Constraint("Tangent", 42, 2, 43, 2),
    Sketcher.Constraint("Tangent", 43, 1, 44, 2),
    Sketcher.Constraint("Coincident", 44, 1, 45, 1),
    Sketcher.Constraint("Coincident", 45, 2, 46, 1),
    Sketcher.Constraint("Coincident", 46, 2, 47, 2),
    Sketcher.Constraint("Tangent", 47, 1, 48, 2),
    Sketcher.Constraint("Tangent", 48, 1, 49, 1),
    Sketcher.Constraint("Tangent", 49, 2, 50, 2),
    Sketcher.Constraint("Tangent", 50, 1, 51, 1),
    Sketcher.Constraint("Tangent", 51, 2, 52, 1),
    Sketcher.Constraint("Tangent", 52, 2, 53, 1),
    Sketcher.Constraint("Tangent", 53, 2, 54, 1),
    Sketcher.Constraint("Tangent", 54, 2, 55, 1),
    Sketcher.Constraint("Tangent", 55, 2, 56, 1),
    Sketcher.Constraint("Tangent", 56, 2, 57, 1),
    Sketcher.Constraint("Tangent", 57, 2, 58, 1),
    Sketcher.Constraint("Tangent", 58, 2, 59, 1),
    Sketcher.Constraint("Tangent", 59, 2, 60, 1),
    Sketcher.Constraint("Tangent", 60, 2, 61, 1),
    Sketcher.Constraint("Tangent", 61, 2, 62, 2),
    Sketcher.Constraint("Tangent", 62, 1, 63, 1),
    Sketcher.Constraint("Tangent", 63, 2, 64, 2),
    Sketcher.Constraint("Tangent", 64, 1, 65, 2),
    Sketcher.Constraint("Coincident", 65, 1, 66, 1),
    Sketcher.Constraint("Coincident", 66, 2, 67, 1),
    Sketcher.Constraint("Coincident", 67, 2, 68, 2),
    Sketcher.Constraint("Tangent", 68, 1, 69, 2),
    Sketcher.Constraint("Tangent", 69, 1, 70, 1),
    Sketcher.Constraint("Tangent", 70, 2, 71, 2),
    Sketcher.Constraint("Tangent", 71, 1, 72, 1),
    Sketcher.Constraint("Tangent", 72, 2, 73, 1),
    Sketcher.Constraint("Tangent", 73, 2, 74, 1),
    Sketcher.Constraint("Tangent", 74, 2, 75, 1),
    Sketcher.Constraint("Tangent", 75, 2, 76, 1),
    Sketcher.Constraint("Tangent", 76, 2, 77, 1),
    Sketcher.Constraint("Tangent", 77, 2, 78, 1),
    Sketcher.Constraint("Tangent", 78, 2, 79, 1),
    Sketcher.Constraint("Tangent", 79, 2, 80, 1),
    Sketcher.Constraint("Tangent", 80, 2, 81, 1),
    Sketcher.Constraint("Tangent", 81, 2, 82, 1),
    Sketcher.Constraint("Tangent", 82, 2, 83, 2),
    Sketcher.Constraint("Tangent", 83, 1, 0, 1),
    Sketcher.Constraint("Vertical", 0),
    Sketcher.Constraint("Vertical", 7),
    Sketcher.Constraint("Horizontal", 9),
    Sketcher.Constraint("Vertical", 11),
    Sketcher.Constraint("Horizontal", 13),
    Sketcher.Constraint("Vertical", 15),
    Sketcher.Constraint("Horizontal", 17),
    Sketcher.Constraint("Vertical", 19),
    Sketcher.Constraint("Horizontal", 21),
    Sketcher.Constraint("Horizontal", 28),
    Sketcher.Constraint("Vertical", 30),
    Sketcher.Constraint("Horizontal", 32),
    Sketcher.Constraint("Vertical", 34),
    Sketcher.Constraint("Horizontal", 36),
    Sketcher.Constraint("Vertical", 38),
    Sketcher.Constraint("Horizontal", 40),
    Sketcher.Constraint("Vertical", 42),
    Sketcher.Constraint("Vertical", 49),
    Sketcher.Constraint("Horizontal", 51),
    Sketcher.Constraint("Vertical", 53),
    Sketcher.Constraint("Horizontal", 55),
    Sketcher.Constraint("Vertical", 57),
    Sketcher.Constraint("Horizontal", 59),
    Sketcher.Constraint("Vertical", 61),
    Sketcher.Constraint("Horizontal", 63),
    Sketcher.Constraint("Horizontal", 70),
    Sketcher.Constraint("Vertical", 72),
    Sketcher.Constraint("Horizontal", 74),
    Sketcher.Constraint("Vertical", 76),
    Sketcher.Constraint("Horizontal", 78),
    Sketcher.Constraint("Vertical", 80),
    Sketcher.Constraint("Horizontal", 82),
    Sketcher.Constraint("Coincident", 5, 3, 2, 3),
    Sketcher.Constraint("Coincident", 26, 3, 23, 3),
    Sketcher.Constraint("Coincident", 47, 3, 44, 3),
    Sketcher.Constraint("Coincident", 68, 3, 65, 3),
    Sketcher.Constraint("Equal", 2, 5),
    Sketcher.Constraint("Equal", 1, 6),
    Sketcher.Constraint("Equal", 6, 8),
    Sketcher.Constraint("Equal", 8, 10),
    Sketcher.Constraint("Equal", 10, 12),
    Sketcher.Constraint("Equal", 12, 14),
    Sketcher.Constraint("Equal", 14, 16),
    Sketcher.Constraint("Equal", 16, 18),
    Sketcher.Constraint("Equal", 18, 20),
    Sketcher.Constraint("Equal", 20, 22),
    Sketcher.Constraint("Equal", 5, 23),
    Sketcher.Constraint("Equal", 23, 26),
    Sketcher.Constraint("Equal", 22, 27),
    Sketcher.Constraint("Equal", 27, 29),
    Sketcher.Constraint("Equal", 29, 31),
    Sketcher.Constraint("Equal", 31, 33),
    Sketcher.Constraint("Equal", 33, 35),
    Sketcher.Constraint("Equal", 35, 37),
    Sketcher.Constraint("Equal", 37, 39),
    Sketcher.Constraint("Equal", 39, 41),
    Sketcher.Constraint("Equal", 41, 43),
    Sketcher.Constraint("Equal", 26, 44),
    Sketcher.Constraint("Equal", 44, 47),
    Sketcher.Constraint("Equal", 43, 48),
    Sketcher.Constraint("Equal", 48, 50),
    Sketcher.Constraint("Equal", 50, 52),
    Sketcher.Constraint("Equal", 52, 54),
    Sketcher.Constraint("Equal", 54, 56),
    Sketcher.Constraint("Equal", 56, 58),
    Sketcher.Constraint("Equal", 58, 60),
    Sketcher.Constraint("Equal", 60, 62),
    Sketcher.Constraint("Equal", 62, 64),
    Sketcher.Constraint("Equal", 47, 65),
    Sketcher.Constraint("Equal", 65, 68),
    Sketcher.Constraint("Equal", 64, 69),
    Sketcher.Constraint("Equal", 69, 71),
    Sketcher.Constraint("Equal", 71, 73),
    Sketcher.Constraint("Equal", 73, 75),
    Sketcher.Constraint("Equal", 75, 77),
    Sketcher.Constraint("Equal", 77, 79),
    Sketcher.Constraint("Equal", 79, 81),
    Sketcher.Constraint("Equal", 81, 83),
    Sketcher.Constraint("Equal", 84, 85),
    Sketcher.Constraint("Equal", 85, 86),
    Sketcher.Constraint("Equal", 86, 88),
    Sketcher.Constraint("Perpendicular", 3, 4),
    Sketcher.Constraint("Parallel", 4, 24),
    Sketcher.Constraint("Perpendicular", 24, 25),
    Sketcher.Constraint("Parallel", 25, 45),
    Sketcher.Constraint("Perpendicular", 45, 46),
    Sketcher.Constraint("Parallel", 46, 66),
    Sketcher.Constraint("Perpendicular", 66, 67),
    Sketcher.Constraint("Horizontal", 1, 3, 6, 3),
    Sketcher.Constraint("Horizontal", 43, 3, 48, 3),
    Sketcher.Constraint("Horizontal", 41, 3, 50, 3),
    Sketcher.Constraint("Horizontal", 37, 3, 54, 3),
    Sketcher.Constraint("Horizontal", 33, 3, 58, 3),
    Sketcher.Constraint("Horizontal", 29, 3, 62, 3),
    Sketcher.Constraint("Horizontal", 26, 3, 65, 3),
    Sketcher.Constraint("Horizontal", 22, 3, 69, 3),
    Sketcher.Constraint("Horizontal", 18, 3, 73, 3),
    Sketcher.Constraint("Horizontal", 14, 3, 77, 3),
    Sketcher.Constraint("Horizontal", 10, 3, 81, 3),
    Sketcher.Constraint("Horizontal", 84, 3, 85, 3),
    Sketcher.Constraint("Horizontal", 68, 3, 87, 3),
    Sketcher.Constraint("Horizontal", 86, 3, 88, 3),
    Sketcher.Constraint("Horizontal", 2, 1, 4, 2),
    Sketcher.Constraint("Horizontal", 87, 3, 24, 2),
    Sketcher.Constraint("Horizontal", 44, 1, 46, 2),
    Sketcher.Constraint("Horizontal", 25, 2, 65, 1),
    Sketcher.Constraint("Horizontal", 24, 2, 66, 2),
    Sketcher.Constraint("Horizontal", 23, 1, 67, 2),
    Sketcher.Constraint("Vertical", 22, 3, 27, 3),
    Sketcher.Constraint("Vertical", 20, 3, 29, 3),
    Sketcher.Constraint("Vertical", 16, 3, 33, 3),
    Sketcher.Constraint("Vertical", 12, 3, 37, 3),
    Sketcher.Constraint("Vertical", 8, 3, 41, 3),
    Sketcher.Constraint("Vertical", 5, 3, 44, 3),
    Sketcher.Constraint("Vertical", 62, 3, 71, 3),
    Sketcher.Constraint("Vertical", 58, 3, 75, 3),
    Sketcher.Constraint("Vertical", 54, 3, 79, 3),
    Sketcher.Constraint("Vertical", 84, 3, 86, 3),
    Sketcher.Constraint("Vertical", 47, 3, 87, 3),
    Sketcher.Constraint("Vertical", 85, 3, 88, 3),
    Sketcher.Constraint("Vertical", 4, 2, 44, 1),
    Sketcher.Constraint("Equal", 9, 17),
    Sketcher.Constraint("Equal", 40, 51),
    Sketcher.Constraint("Equal", 36, 55),
    Sketcher.Constraint("Equal", 51, 59),
    Sketcher.Constraint("Equal", 28, 63),
    Sketcher.Constraint("Equal", 70, 0),
    Sketcher.Constraint("Equal", 82, 11),
    Sketcher.Constraint("Equal", 78, 15),
    Sketcher.Constraint("Equal", 11, 19),
    Sketcher.Constraint("Equal", 19, 30),
    Sketcher.Constraint("Equal", 15, 34),
    Sketcher.Constraint("Equal", 30, 38),
    Sketcher.Constraint("Equal", 7, 42),
    Sketcher.Constraint("Equal", 4, 24),
    Sketcher.Constraint("Diameter", 84, Q("4 mm")),
    Sketcher.Constraint("Diameter", 87, Q("4.3 mm")),
    Sketcher.Constraint("Radius", 1, Q("0.3 mm")),
    Sketcher.Constraint("DistanceX", 9, 1, 9, 2, Q("0.9 mm")),
    Sketcher.Constraint("DistanceX", 13, 2, 13, 1, Q("6.75 mm")),
    Sketcher.Constraint("Radius", 2, Q("6.490833 mm")),
    Sketcher.Constraint("DistanceX", 21, 1, 21, 2, Q("3.257251 mm")),
    Sketcher.Constraint("DistanceY", -1, 1, 43, 3, Q("1182.248799 mm")),
    Sketcher.Constraint("DistanceY", -1, 1, 2, 3, Q("1196.982382 mm")),
    Sketcher.Constraint("DistanceY", -1, 1, 8, 3, Q("1195.391548 mm")),
    Sketcher.Constraint("DistanceX", -1, 1, 65, 3, Q("2313.404761 mm")),
    Sketcher.Constraint("DistanceY", -1, 1, 84, 3, Q("1180.191548 mm")),
    Sketcher.Constraint("DistanceY", -1, 1, 86, 3, Q("1194.191548 mm")),
    Sketcher.Constraint("DistanceY", -1, 1, 3, 2, Q("1190.191548 mm")),
    Sketcher.Constraint("DistanceX", -1, 1, 84, 3, Q("2310.613927 mm")),
    Sketcher.Constraint("DistanceX", -1, 1, 85, 3, Q("2296.613927 mm")),
])
sketch1.setExpression("Constraints[219]", "Params.sketch1_diameter")
sketch1.setExpression("Constraints[220]", "Params.sketch1_diameter2")
sketch1.setExpression("Constraints[221]", "Params.sketch1_radius")
sketch1.setExpression("Constraints[222]", "Params.sketch1_width")
sketch1.setExpression("Constraints[223]", "Params.sketch1_width2")
pad1 = doc.addObject("PartDesign::Pad", "Pad")
body.addObject(pad1)
pad1.Profile = sketch1
pad1.setExpression("Length", "Params.pad1_length")

doc.recompute()
